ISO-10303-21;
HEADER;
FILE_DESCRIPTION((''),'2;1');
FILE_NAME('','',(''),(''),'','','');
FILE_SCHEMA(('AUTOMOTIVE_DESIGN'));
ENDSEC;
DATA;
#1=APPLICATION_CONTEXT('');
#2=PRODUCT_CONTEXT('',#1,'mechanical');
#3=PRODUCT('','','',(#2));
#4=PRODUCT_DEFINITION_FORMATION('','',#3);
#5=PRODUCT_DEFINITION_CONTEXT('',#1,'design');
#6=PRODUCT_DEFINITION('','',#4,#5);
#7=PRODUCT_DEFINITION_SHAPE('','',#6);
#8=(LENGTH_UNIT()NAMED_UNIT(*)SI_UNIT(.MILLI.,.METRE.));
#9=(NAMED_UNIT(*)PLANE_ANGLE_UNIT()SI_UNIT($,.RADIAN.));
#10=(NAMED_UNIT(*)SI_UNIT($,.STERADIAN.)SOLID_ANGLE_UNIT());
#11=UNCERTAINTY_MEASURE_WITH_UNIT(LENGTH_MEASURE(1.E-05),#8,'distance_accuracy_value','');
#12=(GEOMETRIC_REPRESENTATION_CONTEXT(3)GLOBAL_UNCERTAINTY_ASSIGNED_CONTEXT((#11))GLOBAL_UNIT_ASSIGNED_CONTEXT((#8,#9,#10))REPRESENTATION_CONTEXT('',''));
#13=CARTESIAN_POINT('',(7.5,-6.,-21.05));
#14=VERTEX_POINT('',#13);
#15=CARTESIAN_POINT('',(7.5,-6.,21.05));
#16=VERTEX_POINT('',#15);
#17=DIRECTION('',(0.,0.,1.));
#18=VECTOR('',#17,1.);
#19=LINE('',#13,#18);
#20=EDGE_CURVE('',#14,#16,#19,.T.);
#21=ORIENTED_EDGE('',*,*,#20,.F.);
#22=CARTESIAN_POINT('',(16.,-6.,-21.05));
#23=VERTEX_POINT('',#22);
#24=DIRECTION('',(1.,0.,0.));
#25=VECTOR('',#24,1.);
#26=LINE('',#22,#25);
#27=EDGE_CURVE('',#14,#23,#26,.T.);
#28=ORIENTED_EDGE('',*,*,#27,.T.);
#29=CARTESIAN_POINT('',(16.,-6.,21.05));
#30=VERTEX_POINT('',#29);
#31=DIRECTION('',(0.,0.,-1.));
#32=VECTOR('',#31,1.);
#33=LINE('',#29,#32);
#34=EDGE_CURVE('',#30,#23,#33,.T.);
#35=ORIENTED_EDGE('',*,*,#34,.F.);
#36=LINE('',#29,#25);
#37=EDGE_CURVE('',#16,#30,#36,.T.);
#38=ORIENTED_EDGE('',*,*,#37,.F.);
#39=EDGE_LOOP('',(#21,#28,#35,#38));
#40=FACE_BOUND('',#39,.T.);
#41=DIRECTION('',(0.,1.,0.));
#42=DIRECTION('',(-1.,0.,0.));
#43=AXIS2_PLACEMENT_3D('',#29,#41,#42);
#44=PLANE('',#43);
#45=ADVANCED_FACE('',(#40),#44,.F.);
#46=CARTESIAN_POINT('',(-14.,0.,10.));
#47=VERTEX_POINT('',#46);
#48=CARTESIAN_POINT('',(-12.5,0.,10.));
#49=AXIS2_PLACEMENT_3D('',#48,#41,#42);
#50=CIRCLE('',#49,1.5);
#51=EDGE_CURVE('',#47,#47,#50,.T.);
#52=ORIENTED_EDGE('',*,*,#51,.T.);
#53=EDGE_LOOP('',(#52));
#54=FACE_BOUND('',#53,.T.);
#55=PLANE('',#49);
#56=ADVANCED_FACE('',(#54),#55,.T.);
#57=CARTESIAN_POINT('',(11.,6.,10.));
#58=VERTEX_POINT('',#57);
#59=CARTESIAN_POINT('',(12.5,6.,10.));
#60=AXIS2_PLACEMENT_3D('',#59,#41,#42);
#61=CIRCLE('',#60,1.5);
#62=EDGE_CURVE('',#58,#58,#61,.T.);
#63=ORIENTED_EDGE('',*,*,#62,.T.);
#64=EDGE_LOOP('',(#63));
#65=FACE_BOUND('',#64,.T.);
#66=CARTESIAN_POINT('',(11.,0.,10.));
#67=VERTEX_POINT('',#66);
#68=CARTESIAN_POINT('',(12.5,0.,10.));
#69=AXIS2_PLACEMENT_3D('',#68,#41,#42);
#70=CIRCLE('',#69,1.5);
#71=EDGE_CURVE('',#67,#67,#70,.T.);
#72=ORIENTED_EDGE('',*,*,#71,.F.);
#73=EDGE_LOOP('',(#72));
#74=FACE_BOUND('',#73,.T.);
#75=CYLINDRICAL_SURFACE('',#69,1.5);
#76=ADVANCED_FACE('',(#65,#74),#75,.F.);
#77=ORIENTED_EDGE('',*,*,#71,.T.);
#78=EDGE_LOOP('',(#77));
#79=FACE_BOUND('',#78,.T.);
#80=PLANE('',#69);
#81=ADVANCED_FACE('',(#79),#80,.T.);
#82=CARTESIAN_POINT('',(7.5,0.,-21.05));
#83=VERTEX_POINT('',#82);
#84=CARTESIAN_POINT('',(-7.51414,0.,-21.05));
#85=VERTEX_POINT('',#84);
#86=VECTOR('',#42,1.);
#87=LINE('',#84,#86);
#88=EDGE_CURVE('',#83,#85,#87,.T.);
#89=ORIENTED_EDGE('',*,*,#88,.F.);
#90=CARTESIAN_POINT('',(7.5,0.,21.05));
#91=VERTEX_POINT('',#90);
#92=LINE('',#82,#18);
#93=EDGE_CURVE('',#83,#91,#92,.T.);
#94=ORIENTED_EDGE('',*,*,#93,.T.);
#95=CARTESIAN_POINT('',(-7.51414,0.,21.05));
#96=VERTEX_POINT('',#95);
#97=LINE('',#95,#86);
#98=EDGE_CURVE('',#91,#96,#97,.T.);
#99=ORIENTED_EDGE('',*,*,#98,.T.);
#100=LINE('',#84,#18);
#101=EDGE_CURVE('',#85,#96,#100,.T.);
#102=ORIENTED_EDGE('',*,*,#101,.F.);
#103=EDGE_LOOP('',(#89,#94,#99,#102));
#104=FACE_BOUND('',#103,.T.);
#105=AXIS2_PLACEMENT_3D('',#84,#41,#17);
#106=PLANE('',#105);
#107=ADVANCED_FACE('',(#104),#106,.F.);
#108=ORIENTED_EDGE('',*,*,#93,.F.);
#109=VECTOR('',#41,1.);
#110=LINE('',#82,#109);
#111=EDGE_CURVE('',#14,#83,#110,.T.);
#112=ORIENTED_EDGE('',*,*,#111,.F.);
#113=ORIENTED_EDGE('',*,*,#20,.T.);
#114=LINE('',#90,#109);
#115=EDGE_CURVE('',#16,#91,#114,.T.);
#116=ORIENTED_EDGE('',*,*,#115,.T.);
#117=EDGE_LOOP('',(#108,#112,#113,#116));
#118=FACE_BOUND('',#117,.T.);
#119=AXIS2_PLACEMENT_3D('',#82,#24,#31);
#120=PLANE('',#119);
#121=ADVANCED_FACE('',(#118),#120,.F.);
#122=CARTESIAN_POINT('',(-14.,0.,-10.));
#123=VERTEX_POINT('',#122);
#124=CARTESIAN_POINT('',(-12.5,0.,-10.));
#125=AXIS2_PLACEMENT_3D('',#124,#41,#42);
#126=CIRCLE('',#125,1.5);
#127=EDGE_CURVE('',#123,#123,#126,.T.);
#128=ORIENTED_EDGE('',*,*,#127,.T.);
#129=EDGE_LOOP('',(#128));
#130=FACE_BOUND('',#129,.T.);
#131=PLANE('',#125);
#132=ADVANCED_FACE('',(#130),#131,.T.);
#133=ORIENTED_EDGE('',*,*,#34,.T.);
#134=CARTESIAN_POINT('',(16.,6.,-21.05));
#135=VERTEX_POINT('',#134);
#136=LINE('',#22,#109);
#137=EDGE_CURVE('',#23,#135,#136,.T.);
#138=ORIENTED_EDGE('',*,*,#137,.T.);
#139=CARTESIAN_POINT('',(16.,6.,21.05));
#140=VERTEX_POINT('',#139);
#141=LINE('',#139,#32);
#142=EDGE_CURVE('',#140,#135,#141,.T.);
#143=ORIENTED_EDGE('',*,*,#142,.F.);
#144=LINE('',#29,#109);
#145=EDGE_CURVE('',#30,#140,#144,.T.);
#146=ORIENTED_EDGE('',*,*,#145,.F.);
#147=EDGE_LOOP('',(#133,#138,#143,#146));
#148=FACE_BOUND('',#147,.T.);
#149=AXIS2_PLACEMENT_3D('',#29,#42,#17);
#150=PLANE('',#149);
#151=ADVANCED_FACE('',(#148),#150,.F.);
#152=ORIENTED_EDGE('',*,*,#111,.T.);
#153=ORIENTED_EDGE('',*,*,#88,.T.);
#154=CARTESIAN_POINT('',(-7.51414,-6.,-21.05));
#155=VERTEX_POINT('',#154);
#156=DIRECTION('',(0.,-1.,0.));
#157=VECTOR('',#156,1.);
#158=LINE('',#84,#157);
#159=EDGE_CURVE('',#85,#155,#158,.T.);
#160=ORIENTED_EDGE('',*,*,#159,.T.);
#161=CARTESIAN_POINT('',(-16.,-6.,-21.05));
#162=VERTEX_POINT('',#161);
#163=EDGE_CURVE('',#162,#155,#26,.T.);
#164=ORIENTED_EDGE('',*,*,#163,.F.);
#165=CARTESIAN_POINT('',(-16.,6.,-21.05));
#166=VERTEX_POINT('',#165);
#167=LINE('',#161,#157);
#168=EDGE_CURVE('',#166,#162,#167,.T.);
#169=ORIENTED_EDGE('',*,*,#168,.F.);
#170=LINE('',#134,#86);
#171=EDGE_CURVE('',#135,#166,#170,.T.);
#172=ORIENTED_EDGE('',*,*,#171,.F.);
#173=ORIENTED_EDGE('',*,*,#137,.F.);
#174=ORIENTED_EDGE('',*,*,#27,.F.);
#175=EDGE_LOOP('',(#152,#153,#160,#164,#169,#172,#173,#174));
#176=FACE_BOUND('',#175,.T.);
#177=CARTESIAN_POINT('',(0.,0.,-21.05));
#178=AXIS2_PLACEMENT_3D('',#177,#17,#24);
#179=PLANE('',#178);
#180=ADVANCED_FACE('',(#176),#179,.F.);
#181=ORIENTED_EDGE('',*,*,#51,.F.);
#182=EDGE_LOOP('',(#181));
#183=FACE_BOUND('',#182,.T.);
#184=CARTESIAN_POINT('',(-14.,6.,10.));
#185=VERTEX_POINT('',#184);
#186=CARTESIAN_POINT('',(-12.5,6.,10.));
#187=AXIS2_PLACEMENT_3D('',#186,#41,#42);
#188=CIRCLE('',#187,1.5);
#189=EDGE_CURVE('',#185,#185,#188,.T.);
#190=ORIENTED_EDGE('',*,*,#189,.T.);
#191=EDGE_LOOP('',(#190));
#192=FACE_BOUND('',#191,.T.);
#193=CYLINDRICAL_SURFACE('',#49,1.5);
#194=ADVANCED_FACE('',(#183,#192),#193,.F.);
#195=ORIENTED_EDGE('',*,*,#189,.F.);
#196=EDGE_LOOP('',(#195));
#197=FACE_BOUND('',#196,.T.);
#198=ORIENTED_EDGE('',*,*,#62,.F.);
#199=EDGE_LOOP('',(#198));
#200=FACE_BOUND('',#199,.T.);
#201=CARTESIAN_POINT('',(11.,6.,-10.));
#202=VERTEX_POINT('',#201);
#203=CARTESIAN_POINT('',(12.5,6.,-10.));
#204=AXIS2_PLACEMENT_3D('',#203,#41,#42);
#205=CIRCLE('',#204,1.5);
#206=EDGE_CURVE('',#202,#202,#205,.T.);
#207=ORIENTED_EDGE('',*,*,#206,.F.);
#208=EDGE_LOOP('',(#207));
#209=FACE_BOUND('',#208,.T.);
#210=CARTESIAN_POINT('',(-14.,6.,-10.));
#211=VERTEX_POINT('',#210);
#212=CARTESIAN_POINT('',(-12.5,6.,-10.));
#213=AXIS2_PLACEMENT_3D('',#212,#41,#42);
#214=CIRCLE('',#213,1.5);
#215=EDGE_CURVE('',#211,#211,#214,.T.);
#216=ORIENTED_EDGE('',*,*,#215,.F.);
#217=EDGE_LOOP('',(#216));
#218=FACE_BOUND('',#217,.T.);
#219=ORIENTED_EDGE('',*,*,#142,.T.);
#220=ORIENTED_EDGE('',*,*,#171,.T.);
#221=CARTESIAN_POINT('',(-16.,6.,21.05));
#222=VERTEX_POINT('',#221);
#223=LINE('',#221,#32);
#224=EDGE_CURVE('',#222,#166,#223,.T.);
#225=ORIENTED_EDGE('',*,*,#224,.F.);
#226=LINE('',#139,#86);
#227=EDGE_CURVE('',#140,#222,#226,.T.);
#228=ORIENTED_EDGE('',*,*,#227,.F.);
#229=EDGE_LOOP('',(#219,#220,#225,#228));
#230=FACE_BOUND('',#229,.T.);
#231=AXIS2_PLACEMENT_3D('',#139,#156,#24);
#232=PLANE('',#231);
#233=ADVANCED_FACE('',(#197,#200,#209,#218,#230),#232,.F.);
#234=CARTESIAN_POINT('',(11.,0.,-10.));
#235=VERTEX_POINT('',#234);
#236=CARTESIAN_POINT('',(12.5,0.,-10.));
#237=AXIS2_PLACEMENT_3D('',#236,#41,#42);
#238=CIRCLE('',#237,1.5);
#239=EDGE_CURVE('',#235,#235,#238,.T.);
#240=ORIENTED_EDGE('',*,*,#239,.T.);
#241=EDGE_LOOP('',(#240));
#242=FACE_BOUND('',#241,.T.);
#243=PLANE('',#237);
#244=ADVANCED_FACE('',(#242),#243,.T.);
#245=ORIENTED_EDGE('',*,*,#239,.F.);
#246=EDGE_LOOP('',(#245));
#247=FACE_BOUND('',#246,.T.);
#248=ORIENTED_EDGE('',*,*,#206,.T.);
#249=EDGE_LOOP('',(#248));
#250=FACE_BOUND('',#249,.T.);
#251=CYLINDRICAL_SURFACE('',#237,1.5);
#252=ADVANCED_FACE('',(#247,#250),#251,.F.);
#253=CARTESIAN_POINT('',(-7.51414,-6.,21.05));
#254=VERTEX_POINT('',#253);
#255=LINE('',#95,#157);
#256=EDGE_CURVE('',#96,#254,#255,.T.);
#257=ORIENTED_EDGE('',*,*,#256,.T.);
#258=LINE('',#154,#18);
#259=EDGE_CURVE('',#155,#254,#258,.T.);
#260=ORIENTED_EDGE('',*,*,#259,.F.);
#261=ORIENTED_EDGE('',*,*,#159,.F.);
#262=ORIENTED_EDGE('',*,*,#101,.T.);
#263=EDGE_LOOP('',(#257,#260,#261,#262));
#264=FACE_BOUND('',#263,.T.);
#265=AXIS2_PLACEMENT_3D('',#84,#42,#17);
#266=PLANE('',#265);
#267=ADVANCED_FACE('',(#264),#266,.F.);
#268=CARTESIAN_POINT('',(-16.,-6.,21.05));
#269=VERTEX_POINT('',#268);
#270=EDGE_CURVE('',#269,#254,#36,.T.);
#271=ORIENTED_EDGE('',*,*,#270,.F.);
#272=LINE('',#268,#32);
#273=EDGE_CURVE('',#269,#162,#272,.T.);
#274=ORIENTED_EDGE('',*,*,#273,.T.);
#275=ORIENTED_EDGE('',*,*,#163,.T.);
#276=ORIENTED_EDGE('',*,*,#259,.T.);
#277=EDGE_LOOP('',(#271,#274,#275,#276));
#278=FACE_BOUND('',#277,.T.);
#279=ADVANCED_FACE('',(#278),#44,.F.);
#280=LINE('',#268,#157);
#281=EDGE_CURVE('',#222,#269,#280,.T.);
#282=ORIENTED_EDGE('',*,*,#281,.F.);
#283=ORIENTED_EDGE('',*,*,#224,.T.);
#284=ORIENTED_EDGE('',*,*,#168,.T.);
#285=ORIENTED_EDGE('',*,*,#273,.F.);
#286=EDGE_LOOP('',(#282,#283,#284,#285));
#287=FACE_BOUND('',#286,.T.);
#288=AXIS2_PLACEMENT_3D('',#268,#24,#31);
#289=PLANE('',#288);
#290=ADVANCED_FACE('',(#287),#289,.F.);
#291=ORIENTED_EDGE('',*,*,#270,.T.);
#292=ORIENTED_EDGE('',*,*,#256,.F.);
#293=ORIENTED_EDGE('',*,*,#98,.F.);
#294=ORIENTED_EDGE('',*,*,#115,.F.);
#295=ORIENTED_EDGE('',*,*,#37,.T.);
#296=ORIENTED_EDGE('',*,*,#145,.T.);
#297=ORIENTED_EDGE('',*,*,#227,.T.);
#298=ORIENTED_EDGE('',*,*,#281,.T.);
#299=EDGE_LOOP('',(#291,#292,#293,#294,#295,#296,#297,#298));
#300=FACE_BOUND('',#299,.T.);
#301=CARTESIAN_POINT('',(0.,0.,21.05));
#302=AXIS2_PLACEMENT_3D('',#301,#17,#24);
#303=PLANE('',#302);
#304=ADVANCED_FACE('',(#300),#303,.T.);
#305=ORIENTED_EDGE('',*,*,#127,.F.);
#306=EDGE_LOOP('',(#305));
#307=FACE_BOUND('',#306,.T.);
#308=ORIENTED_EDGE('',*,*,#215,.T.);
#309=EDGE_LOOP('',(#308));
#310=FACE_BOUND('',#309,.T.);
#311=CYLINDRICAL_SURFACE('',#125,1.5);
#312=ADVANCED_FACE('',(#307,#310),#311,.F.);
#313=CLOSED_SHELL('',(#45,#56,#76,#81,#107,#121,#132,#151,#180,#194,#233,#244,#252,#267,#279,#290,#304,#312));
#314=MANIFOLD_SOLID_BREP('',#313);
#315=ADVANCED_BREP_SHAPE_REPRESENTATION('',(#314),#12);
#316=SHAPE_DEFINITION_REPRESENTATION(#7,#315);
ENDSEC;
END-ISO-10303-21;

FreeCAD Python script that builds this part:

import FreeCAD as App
import Part
import Sketcher
from FreeCAD import Vector


def add_polygon(sketch, points):
    """Adds a closed chain of lines whose ends are joined by coincident constraints."""
    first, n = sketch.GeometryCount, len(points)
    for a, b in zip(points, points[1:] + points[:1]):
        sketch.addGeometry(Part.LineSegment(App.Vector(*a, 0), App.Vector(*b, 0)), False)
    for i in range(n):
        sketch.addConstraint(Sketcher.Constraint("Coincident", first + i, 2, first + (i + 1) % n, 1))

doc = App.newDocument("Part")
body = doc.addObject("PartDesign::Body", "Body")

sketch1 = body.newObject("Sketcher::SketchObject", "Sketch")
sketch1.AttachmentSupport = (doc.getObject("XY_Plane"), [""])
sketch1.MapMode = "FlatFace"
add_polygon(sketch1, [(-16, 6), (-16, -6), (16, -6), (16, 6)])
sketch1.addConstraint(Sketcher.Constraint("Vertical", 0))
sketch1.addConstraint(Sketcher.Constraint("Horizontal", 1))
sketch1.addConstraint(Sketcher.Constraint("Vertical", 2))
sketch1.addConstraint(Sketcher.Constraint("Horizontal", 3))
sketch1.addConstraint(Sketcher.Constraint("Symmetric", 0, 2, 2, 2, -1, 1))
sketch1.addConstraint(Sketcher.Constraint("DistanceX", 1, 1, 1, 2, 32.0))
sketch1.addConstraint(Sketcher.Constraint("DistanceY", 0, 2, 0, 1, 12.0))
pad1 = body.newObject("PartDesign::Pad", "Pad")
pad1.Profile = sketch1
pad1.Length = 42.1
pad1.Midplane = True

sketch2 = body.newObject("Sketcher::SketchObject", "Sketch001")
sketch2.AttachmentSupport = (doc.getObject("XY_Plane"), [""])
sketch2.MapMode = "FlatFace"
sketch2.AttachmentOffset = App.Placement(Vector(0, 0, 21.05), App.Rotation())
add_polygon(sketch2, [(-8, 0), (-8, -6), (8, -6), (8, 0)])
sketch2.addConstraint(Sketcher.Constraint("Vertical", 0))
sketch2.addConstraint(Sketcher.Constraint("Horizontal", 1))
sketch2.addConstraint(Sketcher.Constraint("Vertical", 2))
sketch2.addConstraint(Sketcher.Constraint("Horizontal", 3))
sketch2.addConstraint(Sketcher.Constraint("PointOnObject", 2, 2, -1))
sketch2.addConstraint(Sketcher.Constraint("DistanceY", 0, 2, 0, 1, 6.0))
sketch2.addConstraint(Sketcher.Constraint("DistanceX", -1, 1, 1, 2, 7.5))
sketch2.addConstraint(Sketcher.Constraint("DistanceX", 1, 1, 1, 2, 15.01414))
pocket1 = body.newObject("PartDesign::Pocket", "Pocket")
pocket1.Profile = sketch2
pocket1.Type = "ThroughAll"

sketch3 = body.newObject("Sketcher::SketchObject", "Sketch002")
sketch3.AttachmentSupport = (doc.getObject("XZ_Plane"), [""])
sketch3.MapMode = "FlatFace"
sketch3.AttachmentOffset = App.Placement(Vector(0, 0, -6), App.Rotation())
sketch3.addGeometry(Part.Circle(Vector(-12.5, -10, 0), Vector(0, 0, 1), 1.5), False)
sketch3.addGeometry(Part.Circle(Vector(12.5, -10, 0), Vector(0, 0, 1), 1.5), False)
sketch3.addGeometry(Part.Circle(Vector(12.5, 10, 0), Vector(0, 0, 1), 1.5), False)
sketch3.addGeometry(Part.Circle(Vector(-12.5, 10, 0), Vector(0, 0, 1), 1.5), False)
sketch3.addConstraint(Sketcher.Constraint("Equal", 0, 1))
sketch3.addConstraint(Sketcher.Constraint("Equal", 1, 2))
sketch3.addConstraint(Sketcher.Constraint("Equal", 2, 3))
sketch3.addConstraint(Sketcher.Constraint("Symmetric", 0, 3, 2, 3, -1, 1))
sketch3.addConstraint(Sketcher.Constraint("Symmetric", 1, 3, 3, 3, -1, 1))
sketch3.addConstraint(Sketcher.Constraint("Symmetric", 0, 3, 1, 3, -2))
sketch3.addConstraint(Sketcher.Constraint("Diameter", 0, 3.0))
sketch3.addConstraint(Sketcher.Constraint("DistanceY", 0, 3, -1, 1, 10.0))
sketch3.addConstraint(Sketcher.Constraint("DistanceX", 0, 3, 1, 3, 25.0))
pocket2 = body.newObject("PartDesign::Pocket", "Pocket001")
pocket2.Profile = sketch3
pocket2.Length = 6
pocket2.Reversed = True

doc.recompute()
